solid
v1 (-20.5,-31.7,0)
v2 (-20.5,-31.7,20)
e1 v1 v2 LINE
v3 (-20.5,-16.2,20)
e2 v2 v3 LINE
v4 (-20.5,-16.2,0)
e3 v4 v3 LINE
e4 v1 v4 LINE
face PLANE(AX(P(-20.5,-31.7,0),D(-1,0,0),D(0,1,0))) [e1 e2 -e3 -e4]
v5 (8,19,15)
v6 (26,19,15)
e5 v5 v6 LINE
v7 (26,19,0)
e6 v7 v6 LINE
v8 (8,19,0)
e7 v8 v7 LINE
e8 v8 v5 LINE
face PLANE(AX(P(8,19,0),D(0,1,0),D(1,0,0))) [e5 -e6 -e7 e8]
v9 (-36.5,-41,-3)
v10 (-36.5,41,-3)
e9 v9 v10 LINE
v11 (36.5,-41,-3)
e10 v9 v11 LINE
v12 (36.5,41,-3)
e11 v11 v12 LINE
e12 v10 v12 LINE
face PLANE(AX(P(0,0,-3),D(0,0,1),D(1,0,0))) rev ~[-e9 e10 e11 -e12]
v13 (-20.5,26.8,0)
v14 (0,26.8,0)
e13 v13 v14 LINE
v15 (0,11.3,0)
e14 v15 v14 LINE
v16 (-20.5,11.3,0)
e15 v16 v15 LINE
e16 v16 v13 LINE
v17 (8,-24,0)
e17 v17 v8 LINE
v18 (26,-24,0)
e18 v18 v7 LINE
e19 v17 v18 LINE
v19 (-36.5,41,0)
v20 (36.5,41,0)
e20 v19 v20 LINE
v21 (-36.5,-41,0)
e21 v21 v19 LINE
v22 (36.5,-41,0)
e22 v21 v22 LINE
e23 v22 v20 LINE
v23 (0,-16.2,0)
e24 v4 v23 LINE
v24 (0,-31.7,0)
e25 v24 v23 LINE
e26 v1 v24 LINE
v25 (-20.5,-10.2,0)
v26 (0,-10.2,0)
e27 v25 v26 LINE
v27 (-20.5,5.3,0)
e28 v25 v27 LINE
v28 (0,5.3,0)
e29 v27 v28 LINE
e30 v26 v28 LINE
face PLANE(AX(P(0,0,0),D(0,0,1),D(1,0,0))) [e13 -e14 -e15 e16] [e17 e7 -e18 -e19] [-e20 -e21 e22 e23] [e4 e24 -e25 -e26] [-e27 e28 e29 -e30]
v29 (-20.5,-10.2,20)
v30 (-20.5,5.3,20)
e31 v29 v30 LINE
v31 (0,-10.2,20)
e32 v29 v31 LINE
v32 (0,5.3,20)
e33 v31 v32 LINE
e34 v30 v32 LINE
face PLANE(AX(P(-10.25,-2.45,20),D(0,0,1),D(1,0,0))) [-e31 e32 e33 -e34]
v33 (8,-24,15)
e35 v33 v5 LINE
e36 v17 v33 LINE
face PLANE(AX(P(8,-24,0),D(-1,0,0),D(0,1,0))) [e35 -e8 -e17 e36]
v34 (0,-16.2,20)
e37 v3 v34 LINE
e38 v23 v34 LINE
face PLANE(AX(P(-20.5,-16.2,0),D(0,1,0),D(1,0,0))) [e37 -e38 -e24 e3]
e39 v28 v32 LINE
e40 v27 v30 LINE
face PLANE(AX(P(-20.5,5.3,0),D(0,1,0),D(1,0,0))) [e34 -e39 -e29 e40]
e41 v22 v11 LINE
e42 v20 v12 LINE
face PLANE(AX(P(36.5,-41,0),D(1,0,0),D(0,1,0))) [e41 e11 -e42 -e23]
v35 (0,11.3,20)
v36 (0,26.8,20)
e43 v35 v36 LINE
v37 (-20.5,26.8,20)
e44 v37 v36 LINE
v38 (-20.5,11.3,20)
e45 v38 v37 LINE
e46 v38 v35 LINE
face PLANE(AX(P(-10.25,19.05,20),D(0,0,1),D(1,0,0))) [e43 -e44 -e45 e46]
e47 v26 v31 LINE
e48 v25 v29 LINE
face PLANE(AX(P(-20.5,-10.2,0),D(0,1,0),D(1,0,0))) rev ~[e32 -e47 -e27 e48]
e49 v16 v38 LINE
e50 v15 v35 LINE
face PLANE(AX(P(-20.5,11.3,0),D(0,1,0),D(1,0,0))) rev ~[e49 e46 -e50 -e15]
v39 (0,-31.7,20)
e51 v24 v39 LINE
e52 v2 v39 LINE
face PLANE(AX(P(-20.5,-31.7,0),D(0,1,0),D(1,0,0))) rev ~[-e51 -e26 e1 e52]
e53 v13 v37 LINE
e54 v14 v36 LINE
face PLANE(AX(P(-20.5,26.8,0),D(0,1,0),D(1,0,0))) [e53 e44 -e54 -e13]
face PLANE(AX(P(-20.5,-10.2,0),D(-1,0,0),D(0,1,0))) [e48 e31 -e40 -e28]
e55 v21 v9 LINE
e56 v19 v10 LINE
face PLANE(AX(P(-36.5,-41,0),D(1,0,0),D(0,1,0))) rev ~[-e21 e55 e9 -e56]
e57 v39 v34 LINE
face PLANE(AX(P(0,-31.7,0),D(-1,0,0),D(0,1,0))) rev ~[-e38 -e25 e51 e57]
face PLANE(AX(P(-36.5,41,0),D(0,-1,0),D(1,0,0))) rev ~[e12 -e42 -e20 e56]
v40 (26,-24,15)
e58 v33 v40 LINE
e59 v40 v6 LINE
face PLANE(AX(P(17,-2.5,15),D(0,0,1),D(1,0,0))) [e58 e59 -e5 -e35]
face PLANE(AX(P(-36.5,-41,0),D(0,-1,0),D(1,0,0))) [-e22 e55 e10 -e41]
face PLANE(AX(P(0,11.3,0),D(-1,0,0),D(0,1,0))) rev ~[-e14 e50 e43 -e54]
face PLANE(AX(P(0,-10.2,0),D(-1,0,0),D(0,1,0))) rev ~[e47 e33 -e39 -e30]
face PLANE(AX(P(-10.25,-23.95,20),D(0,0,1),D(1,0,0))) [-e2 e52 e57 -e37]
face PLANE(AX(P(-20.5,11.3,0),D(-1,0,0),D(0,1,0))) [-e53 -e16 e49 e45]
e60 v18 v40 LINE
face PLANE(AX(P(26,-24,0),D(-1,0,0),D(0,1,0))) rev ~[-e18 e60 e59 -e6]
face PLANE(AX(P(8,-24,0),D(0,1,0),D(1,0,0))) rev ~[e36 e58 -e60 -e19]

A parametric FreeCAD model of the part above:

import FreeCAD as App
import Part
import Sketcher

V = App.Vector
Q = App.Units.Quantity

doc = App.newDocument("Part")
body = doc.addObject("PartDesign::Body", "Body")

sketch1 = doc.addObject("Sketcher::SketchObject", "Sketch")
body.addObject(sketch1)
sketch1.AttachmentSupport = (doc.XY_Plane, [""])
sketch1.MapMode = "FlatFace"
sketch1.addGeometry([
    Part.LineSegment(V(-36, 41, 0), V(-36, -41, 0)),
    Part.LineSegment(V(-36, -41, 0), V(36, -41, 0)),
    Part.LineSegment(V(36, -41, 0), V(36, 41, 0)),
    Part.LineSegment(V(36, 41, 0), V(-36, 41, 0)),
], False)
sketch1.addConstraint([
    Sketcher.Constraint("Coincident", 0, 2, 1, 1),
    Sketcher.Constraint("Coincident", 1, 2, 2, 1),
    Sketcher.Constraint("Coincident", 2, 2, 3, 1),
    Sketcher.Constraint("Coincident", 3, 2, 0, 1),
    Sketcher.Constraint("Vertical", 0),
    Sketcher.Constraint("Horizontal", 1),
    Sketcher.Constraint("Vertical", 2),
    Sketcher.Constraint("Horizontal", 3),
    Sketcher.Constraint("Symmetric", 0, 2, 2, 2, -1, 1),
    Sketcher.Constraint("DistanceX", 1, 1, 1, 2, Q("73 mm")),
    Sketcher.Constraint("DistanceY", 0, 2, 0, 1, Q("82 mm")),
])
pad1 = doc.addObject("PartDesign::Pad", "Pad")
body.addObject(pad1)
pad1.Profile = sketch1
pad1.Length = 3
pad1.Reversed = True

sketch2 = doc.addObject("Sketcher::SketchObject", "Sketch001")
body.addObject(sketch2)
sketch2.AttachmentSupport = (doc.XY_Plane, [""])
sketch2.MapMode = "FlatFace"
sketch2.addGeometry([
    Part.LineSegment(V(-20, -16, 0), V(-20, -32, 0)),
    Part.LineSegment(V(-20, -32, 0), V(0, -32, 0)),
    Part.LineSegment(V(0, -32, 0), V(0, -16, 0)),
    Part.LineSegment(V(0, -16, 0), V(-20, -16, 0)),
    Part.LineSegment(V(-20, 5, 0), V(-20, -10, 0)),
    Part.LineSegment(V(-20, -10, 0), V(0, -10, 0)),
    Part.LineSegment(V(0, -10, 0), V(0, 5, 0)),
    Part.LineSegment(V(0, 5, 0), V(-20, 5, 0)),
    Part.LineSegment(V(-20, 27, 0), V(-20, 11, 0)),
    Part.LineSegment(V(-20, 11, 0), V(0, 11, 0)),
    Part.LineSegment(V(0, 11, 0), V(0, 27, 0)),
    Part.LineSegment(V(0, 27, 0), V(-20, 27, 0)),
], False)
sketch2.addConstraint([
    Sketcher.Constraint("Coincident", 0, 2, 1, 1),
    Sketcher.Constraint("Coincident", 1, 2, 2, 1),
    Sketcher.Constraint("Coincident", 2, 2, 3, 1),
    Sketcher.Constraint("Coincident", 3, 2, 0, 1),
    Sketcher.Constraint("Coincident", 4, 2, 5, 1),
    Sketcher.Constraint("Coincident", 5, 2, 6, 1),
    Sketcher.Constraint("Coincident", 6, 2, 7, 1),
    Sketcher.Constraint("Coincident", 7, 2, 4, 1),
    Sketcher.Constraint("Coincident", 8, 2, 9, 1),
    Sketcher.Constraint("Coincident", 9, 2, 10, 1),
    Sketcher.Constraint("Coincident", 10, 2, 11, 1),
    Sketcher.Constraint("Coincident", 11, 2, 8, 1),
    Sketcher.Constraint("Vertical", 0),
    Sketcher.Constraint("Horizontal", 1),
    Sketcher.Constraint("Vertical", 2),
    Sketcher.Constraint("Horizontal", 3),
    Sketcher.Constraint("Vertical", 4),
    Sketcher.Constraint("Horizontal", 5),
    Sketcher.Constraint("Vertical", 6),
    Sketcher.Constraint("Horizontal", 7),
    Sketcher.Constraint("Vertical", 8),
    Sketcher.Constraint("Horizontal", 9),
    Sketcher.Constraint("Vertical", 10),
    Sketcher.Constraint("Horizontal", 11),
    Sketcher.Constraint("PointOnObject", 1, 2, -2),
    Sketcher.Constraint("PointOnObject", 5, 2, -2),
    Sketcher.Constraint("PointOnObject", 9, 2, -2),
    Sketcher.Constraint("Vertical", 3, 2, 4, 2),
    Sketcher.Constraint("Vertical", 7, 2, 8, 2),
    Sketcher.Constraint("Equal", 2, 4),
    Sketcher.Constraint("Equal", 6, 8),
    Sketcher.Constraint("DistanceX", 1, 1, 1, 2, Q("20.5 mm")),
    Sketcher.Constraint("DistanceY", 0, 2, 0, 1, Q("15.5 mm")),
    Sketcher.Constraint("DistanceY", 3, 2, 4, 2, Q("6 mm")),
    Sketcher.Constraint("DistanceY", 7, 2, 8, 2, Q("6 mm")),
    Sketcher.Constraint("DistanceY", 0, 2, -1, 1, Q("31.7 mm")),
])
pad2 = doc.addObject("PartDesign::Pad", "Pad001")
body.addObject(pad2)
pad2.Profile = sketch2
pad2.Length = 20

sketch3 = doc.addObject("Sketcher::SketchObject", "Sketch002")
body.addObject(sketch3)
sketch3.AttachmentSupport = (doc.XY_Plane, [""])
sketch3.MapMode = "FlatFace"
sketch3.addGeometry([
    Part.LineSegment(V(8, 19, 0), V(8, -24, 0)),
    Part.LineSegment(V(8, -24, 0), V(26, -24, 0)),
    Part.LineSegment(V(26, -24, 0), V(26, 19, 0)),
    Part.LineSegment(V(26, 19, 0), V(8, 19, 0)),
], False)
sketch3.addConstraint([
    Sketcher.Constraint("Coincident", 0, 2, 1, 1),
    Sketcher.Constraint("Coincident", 1, 2, 2, 1),
    Sketcher.Constraint("Coincident", 2, 2, 3, 1),
    Sketcher.Constraint("Coincident", 3, 2, 0, 1),
    Sketcher.Constraint("Vertical", 0),
    Sketcher.Constraint("Horizontal", 1),
    Sketcher.Constraint("Vertical", 2),
    Sketcher.Constraint("Horizontal", 3),
    Sketcher.Constraint("DistanceX", 1, 1, 1, 2, Q("18 mm")),
    Sketcher.Constraint("DistanceY", 0, 2, 0, 1, Q("43 mm")),
    Sketcher.Constraint("DistanceX", -1, 1, 0, 2, Q("8 mm")),
    Sketcher.Constraint("DistanceY", 0, 2, -1, 1, Q("24 mm")),
])
pad3 = doc.addObject("PartDesign::Pad", "Pad002")
body.addObject(pad3)
pad3.Profile = sketch3
pad3.Length = 15

doc.recompute()
